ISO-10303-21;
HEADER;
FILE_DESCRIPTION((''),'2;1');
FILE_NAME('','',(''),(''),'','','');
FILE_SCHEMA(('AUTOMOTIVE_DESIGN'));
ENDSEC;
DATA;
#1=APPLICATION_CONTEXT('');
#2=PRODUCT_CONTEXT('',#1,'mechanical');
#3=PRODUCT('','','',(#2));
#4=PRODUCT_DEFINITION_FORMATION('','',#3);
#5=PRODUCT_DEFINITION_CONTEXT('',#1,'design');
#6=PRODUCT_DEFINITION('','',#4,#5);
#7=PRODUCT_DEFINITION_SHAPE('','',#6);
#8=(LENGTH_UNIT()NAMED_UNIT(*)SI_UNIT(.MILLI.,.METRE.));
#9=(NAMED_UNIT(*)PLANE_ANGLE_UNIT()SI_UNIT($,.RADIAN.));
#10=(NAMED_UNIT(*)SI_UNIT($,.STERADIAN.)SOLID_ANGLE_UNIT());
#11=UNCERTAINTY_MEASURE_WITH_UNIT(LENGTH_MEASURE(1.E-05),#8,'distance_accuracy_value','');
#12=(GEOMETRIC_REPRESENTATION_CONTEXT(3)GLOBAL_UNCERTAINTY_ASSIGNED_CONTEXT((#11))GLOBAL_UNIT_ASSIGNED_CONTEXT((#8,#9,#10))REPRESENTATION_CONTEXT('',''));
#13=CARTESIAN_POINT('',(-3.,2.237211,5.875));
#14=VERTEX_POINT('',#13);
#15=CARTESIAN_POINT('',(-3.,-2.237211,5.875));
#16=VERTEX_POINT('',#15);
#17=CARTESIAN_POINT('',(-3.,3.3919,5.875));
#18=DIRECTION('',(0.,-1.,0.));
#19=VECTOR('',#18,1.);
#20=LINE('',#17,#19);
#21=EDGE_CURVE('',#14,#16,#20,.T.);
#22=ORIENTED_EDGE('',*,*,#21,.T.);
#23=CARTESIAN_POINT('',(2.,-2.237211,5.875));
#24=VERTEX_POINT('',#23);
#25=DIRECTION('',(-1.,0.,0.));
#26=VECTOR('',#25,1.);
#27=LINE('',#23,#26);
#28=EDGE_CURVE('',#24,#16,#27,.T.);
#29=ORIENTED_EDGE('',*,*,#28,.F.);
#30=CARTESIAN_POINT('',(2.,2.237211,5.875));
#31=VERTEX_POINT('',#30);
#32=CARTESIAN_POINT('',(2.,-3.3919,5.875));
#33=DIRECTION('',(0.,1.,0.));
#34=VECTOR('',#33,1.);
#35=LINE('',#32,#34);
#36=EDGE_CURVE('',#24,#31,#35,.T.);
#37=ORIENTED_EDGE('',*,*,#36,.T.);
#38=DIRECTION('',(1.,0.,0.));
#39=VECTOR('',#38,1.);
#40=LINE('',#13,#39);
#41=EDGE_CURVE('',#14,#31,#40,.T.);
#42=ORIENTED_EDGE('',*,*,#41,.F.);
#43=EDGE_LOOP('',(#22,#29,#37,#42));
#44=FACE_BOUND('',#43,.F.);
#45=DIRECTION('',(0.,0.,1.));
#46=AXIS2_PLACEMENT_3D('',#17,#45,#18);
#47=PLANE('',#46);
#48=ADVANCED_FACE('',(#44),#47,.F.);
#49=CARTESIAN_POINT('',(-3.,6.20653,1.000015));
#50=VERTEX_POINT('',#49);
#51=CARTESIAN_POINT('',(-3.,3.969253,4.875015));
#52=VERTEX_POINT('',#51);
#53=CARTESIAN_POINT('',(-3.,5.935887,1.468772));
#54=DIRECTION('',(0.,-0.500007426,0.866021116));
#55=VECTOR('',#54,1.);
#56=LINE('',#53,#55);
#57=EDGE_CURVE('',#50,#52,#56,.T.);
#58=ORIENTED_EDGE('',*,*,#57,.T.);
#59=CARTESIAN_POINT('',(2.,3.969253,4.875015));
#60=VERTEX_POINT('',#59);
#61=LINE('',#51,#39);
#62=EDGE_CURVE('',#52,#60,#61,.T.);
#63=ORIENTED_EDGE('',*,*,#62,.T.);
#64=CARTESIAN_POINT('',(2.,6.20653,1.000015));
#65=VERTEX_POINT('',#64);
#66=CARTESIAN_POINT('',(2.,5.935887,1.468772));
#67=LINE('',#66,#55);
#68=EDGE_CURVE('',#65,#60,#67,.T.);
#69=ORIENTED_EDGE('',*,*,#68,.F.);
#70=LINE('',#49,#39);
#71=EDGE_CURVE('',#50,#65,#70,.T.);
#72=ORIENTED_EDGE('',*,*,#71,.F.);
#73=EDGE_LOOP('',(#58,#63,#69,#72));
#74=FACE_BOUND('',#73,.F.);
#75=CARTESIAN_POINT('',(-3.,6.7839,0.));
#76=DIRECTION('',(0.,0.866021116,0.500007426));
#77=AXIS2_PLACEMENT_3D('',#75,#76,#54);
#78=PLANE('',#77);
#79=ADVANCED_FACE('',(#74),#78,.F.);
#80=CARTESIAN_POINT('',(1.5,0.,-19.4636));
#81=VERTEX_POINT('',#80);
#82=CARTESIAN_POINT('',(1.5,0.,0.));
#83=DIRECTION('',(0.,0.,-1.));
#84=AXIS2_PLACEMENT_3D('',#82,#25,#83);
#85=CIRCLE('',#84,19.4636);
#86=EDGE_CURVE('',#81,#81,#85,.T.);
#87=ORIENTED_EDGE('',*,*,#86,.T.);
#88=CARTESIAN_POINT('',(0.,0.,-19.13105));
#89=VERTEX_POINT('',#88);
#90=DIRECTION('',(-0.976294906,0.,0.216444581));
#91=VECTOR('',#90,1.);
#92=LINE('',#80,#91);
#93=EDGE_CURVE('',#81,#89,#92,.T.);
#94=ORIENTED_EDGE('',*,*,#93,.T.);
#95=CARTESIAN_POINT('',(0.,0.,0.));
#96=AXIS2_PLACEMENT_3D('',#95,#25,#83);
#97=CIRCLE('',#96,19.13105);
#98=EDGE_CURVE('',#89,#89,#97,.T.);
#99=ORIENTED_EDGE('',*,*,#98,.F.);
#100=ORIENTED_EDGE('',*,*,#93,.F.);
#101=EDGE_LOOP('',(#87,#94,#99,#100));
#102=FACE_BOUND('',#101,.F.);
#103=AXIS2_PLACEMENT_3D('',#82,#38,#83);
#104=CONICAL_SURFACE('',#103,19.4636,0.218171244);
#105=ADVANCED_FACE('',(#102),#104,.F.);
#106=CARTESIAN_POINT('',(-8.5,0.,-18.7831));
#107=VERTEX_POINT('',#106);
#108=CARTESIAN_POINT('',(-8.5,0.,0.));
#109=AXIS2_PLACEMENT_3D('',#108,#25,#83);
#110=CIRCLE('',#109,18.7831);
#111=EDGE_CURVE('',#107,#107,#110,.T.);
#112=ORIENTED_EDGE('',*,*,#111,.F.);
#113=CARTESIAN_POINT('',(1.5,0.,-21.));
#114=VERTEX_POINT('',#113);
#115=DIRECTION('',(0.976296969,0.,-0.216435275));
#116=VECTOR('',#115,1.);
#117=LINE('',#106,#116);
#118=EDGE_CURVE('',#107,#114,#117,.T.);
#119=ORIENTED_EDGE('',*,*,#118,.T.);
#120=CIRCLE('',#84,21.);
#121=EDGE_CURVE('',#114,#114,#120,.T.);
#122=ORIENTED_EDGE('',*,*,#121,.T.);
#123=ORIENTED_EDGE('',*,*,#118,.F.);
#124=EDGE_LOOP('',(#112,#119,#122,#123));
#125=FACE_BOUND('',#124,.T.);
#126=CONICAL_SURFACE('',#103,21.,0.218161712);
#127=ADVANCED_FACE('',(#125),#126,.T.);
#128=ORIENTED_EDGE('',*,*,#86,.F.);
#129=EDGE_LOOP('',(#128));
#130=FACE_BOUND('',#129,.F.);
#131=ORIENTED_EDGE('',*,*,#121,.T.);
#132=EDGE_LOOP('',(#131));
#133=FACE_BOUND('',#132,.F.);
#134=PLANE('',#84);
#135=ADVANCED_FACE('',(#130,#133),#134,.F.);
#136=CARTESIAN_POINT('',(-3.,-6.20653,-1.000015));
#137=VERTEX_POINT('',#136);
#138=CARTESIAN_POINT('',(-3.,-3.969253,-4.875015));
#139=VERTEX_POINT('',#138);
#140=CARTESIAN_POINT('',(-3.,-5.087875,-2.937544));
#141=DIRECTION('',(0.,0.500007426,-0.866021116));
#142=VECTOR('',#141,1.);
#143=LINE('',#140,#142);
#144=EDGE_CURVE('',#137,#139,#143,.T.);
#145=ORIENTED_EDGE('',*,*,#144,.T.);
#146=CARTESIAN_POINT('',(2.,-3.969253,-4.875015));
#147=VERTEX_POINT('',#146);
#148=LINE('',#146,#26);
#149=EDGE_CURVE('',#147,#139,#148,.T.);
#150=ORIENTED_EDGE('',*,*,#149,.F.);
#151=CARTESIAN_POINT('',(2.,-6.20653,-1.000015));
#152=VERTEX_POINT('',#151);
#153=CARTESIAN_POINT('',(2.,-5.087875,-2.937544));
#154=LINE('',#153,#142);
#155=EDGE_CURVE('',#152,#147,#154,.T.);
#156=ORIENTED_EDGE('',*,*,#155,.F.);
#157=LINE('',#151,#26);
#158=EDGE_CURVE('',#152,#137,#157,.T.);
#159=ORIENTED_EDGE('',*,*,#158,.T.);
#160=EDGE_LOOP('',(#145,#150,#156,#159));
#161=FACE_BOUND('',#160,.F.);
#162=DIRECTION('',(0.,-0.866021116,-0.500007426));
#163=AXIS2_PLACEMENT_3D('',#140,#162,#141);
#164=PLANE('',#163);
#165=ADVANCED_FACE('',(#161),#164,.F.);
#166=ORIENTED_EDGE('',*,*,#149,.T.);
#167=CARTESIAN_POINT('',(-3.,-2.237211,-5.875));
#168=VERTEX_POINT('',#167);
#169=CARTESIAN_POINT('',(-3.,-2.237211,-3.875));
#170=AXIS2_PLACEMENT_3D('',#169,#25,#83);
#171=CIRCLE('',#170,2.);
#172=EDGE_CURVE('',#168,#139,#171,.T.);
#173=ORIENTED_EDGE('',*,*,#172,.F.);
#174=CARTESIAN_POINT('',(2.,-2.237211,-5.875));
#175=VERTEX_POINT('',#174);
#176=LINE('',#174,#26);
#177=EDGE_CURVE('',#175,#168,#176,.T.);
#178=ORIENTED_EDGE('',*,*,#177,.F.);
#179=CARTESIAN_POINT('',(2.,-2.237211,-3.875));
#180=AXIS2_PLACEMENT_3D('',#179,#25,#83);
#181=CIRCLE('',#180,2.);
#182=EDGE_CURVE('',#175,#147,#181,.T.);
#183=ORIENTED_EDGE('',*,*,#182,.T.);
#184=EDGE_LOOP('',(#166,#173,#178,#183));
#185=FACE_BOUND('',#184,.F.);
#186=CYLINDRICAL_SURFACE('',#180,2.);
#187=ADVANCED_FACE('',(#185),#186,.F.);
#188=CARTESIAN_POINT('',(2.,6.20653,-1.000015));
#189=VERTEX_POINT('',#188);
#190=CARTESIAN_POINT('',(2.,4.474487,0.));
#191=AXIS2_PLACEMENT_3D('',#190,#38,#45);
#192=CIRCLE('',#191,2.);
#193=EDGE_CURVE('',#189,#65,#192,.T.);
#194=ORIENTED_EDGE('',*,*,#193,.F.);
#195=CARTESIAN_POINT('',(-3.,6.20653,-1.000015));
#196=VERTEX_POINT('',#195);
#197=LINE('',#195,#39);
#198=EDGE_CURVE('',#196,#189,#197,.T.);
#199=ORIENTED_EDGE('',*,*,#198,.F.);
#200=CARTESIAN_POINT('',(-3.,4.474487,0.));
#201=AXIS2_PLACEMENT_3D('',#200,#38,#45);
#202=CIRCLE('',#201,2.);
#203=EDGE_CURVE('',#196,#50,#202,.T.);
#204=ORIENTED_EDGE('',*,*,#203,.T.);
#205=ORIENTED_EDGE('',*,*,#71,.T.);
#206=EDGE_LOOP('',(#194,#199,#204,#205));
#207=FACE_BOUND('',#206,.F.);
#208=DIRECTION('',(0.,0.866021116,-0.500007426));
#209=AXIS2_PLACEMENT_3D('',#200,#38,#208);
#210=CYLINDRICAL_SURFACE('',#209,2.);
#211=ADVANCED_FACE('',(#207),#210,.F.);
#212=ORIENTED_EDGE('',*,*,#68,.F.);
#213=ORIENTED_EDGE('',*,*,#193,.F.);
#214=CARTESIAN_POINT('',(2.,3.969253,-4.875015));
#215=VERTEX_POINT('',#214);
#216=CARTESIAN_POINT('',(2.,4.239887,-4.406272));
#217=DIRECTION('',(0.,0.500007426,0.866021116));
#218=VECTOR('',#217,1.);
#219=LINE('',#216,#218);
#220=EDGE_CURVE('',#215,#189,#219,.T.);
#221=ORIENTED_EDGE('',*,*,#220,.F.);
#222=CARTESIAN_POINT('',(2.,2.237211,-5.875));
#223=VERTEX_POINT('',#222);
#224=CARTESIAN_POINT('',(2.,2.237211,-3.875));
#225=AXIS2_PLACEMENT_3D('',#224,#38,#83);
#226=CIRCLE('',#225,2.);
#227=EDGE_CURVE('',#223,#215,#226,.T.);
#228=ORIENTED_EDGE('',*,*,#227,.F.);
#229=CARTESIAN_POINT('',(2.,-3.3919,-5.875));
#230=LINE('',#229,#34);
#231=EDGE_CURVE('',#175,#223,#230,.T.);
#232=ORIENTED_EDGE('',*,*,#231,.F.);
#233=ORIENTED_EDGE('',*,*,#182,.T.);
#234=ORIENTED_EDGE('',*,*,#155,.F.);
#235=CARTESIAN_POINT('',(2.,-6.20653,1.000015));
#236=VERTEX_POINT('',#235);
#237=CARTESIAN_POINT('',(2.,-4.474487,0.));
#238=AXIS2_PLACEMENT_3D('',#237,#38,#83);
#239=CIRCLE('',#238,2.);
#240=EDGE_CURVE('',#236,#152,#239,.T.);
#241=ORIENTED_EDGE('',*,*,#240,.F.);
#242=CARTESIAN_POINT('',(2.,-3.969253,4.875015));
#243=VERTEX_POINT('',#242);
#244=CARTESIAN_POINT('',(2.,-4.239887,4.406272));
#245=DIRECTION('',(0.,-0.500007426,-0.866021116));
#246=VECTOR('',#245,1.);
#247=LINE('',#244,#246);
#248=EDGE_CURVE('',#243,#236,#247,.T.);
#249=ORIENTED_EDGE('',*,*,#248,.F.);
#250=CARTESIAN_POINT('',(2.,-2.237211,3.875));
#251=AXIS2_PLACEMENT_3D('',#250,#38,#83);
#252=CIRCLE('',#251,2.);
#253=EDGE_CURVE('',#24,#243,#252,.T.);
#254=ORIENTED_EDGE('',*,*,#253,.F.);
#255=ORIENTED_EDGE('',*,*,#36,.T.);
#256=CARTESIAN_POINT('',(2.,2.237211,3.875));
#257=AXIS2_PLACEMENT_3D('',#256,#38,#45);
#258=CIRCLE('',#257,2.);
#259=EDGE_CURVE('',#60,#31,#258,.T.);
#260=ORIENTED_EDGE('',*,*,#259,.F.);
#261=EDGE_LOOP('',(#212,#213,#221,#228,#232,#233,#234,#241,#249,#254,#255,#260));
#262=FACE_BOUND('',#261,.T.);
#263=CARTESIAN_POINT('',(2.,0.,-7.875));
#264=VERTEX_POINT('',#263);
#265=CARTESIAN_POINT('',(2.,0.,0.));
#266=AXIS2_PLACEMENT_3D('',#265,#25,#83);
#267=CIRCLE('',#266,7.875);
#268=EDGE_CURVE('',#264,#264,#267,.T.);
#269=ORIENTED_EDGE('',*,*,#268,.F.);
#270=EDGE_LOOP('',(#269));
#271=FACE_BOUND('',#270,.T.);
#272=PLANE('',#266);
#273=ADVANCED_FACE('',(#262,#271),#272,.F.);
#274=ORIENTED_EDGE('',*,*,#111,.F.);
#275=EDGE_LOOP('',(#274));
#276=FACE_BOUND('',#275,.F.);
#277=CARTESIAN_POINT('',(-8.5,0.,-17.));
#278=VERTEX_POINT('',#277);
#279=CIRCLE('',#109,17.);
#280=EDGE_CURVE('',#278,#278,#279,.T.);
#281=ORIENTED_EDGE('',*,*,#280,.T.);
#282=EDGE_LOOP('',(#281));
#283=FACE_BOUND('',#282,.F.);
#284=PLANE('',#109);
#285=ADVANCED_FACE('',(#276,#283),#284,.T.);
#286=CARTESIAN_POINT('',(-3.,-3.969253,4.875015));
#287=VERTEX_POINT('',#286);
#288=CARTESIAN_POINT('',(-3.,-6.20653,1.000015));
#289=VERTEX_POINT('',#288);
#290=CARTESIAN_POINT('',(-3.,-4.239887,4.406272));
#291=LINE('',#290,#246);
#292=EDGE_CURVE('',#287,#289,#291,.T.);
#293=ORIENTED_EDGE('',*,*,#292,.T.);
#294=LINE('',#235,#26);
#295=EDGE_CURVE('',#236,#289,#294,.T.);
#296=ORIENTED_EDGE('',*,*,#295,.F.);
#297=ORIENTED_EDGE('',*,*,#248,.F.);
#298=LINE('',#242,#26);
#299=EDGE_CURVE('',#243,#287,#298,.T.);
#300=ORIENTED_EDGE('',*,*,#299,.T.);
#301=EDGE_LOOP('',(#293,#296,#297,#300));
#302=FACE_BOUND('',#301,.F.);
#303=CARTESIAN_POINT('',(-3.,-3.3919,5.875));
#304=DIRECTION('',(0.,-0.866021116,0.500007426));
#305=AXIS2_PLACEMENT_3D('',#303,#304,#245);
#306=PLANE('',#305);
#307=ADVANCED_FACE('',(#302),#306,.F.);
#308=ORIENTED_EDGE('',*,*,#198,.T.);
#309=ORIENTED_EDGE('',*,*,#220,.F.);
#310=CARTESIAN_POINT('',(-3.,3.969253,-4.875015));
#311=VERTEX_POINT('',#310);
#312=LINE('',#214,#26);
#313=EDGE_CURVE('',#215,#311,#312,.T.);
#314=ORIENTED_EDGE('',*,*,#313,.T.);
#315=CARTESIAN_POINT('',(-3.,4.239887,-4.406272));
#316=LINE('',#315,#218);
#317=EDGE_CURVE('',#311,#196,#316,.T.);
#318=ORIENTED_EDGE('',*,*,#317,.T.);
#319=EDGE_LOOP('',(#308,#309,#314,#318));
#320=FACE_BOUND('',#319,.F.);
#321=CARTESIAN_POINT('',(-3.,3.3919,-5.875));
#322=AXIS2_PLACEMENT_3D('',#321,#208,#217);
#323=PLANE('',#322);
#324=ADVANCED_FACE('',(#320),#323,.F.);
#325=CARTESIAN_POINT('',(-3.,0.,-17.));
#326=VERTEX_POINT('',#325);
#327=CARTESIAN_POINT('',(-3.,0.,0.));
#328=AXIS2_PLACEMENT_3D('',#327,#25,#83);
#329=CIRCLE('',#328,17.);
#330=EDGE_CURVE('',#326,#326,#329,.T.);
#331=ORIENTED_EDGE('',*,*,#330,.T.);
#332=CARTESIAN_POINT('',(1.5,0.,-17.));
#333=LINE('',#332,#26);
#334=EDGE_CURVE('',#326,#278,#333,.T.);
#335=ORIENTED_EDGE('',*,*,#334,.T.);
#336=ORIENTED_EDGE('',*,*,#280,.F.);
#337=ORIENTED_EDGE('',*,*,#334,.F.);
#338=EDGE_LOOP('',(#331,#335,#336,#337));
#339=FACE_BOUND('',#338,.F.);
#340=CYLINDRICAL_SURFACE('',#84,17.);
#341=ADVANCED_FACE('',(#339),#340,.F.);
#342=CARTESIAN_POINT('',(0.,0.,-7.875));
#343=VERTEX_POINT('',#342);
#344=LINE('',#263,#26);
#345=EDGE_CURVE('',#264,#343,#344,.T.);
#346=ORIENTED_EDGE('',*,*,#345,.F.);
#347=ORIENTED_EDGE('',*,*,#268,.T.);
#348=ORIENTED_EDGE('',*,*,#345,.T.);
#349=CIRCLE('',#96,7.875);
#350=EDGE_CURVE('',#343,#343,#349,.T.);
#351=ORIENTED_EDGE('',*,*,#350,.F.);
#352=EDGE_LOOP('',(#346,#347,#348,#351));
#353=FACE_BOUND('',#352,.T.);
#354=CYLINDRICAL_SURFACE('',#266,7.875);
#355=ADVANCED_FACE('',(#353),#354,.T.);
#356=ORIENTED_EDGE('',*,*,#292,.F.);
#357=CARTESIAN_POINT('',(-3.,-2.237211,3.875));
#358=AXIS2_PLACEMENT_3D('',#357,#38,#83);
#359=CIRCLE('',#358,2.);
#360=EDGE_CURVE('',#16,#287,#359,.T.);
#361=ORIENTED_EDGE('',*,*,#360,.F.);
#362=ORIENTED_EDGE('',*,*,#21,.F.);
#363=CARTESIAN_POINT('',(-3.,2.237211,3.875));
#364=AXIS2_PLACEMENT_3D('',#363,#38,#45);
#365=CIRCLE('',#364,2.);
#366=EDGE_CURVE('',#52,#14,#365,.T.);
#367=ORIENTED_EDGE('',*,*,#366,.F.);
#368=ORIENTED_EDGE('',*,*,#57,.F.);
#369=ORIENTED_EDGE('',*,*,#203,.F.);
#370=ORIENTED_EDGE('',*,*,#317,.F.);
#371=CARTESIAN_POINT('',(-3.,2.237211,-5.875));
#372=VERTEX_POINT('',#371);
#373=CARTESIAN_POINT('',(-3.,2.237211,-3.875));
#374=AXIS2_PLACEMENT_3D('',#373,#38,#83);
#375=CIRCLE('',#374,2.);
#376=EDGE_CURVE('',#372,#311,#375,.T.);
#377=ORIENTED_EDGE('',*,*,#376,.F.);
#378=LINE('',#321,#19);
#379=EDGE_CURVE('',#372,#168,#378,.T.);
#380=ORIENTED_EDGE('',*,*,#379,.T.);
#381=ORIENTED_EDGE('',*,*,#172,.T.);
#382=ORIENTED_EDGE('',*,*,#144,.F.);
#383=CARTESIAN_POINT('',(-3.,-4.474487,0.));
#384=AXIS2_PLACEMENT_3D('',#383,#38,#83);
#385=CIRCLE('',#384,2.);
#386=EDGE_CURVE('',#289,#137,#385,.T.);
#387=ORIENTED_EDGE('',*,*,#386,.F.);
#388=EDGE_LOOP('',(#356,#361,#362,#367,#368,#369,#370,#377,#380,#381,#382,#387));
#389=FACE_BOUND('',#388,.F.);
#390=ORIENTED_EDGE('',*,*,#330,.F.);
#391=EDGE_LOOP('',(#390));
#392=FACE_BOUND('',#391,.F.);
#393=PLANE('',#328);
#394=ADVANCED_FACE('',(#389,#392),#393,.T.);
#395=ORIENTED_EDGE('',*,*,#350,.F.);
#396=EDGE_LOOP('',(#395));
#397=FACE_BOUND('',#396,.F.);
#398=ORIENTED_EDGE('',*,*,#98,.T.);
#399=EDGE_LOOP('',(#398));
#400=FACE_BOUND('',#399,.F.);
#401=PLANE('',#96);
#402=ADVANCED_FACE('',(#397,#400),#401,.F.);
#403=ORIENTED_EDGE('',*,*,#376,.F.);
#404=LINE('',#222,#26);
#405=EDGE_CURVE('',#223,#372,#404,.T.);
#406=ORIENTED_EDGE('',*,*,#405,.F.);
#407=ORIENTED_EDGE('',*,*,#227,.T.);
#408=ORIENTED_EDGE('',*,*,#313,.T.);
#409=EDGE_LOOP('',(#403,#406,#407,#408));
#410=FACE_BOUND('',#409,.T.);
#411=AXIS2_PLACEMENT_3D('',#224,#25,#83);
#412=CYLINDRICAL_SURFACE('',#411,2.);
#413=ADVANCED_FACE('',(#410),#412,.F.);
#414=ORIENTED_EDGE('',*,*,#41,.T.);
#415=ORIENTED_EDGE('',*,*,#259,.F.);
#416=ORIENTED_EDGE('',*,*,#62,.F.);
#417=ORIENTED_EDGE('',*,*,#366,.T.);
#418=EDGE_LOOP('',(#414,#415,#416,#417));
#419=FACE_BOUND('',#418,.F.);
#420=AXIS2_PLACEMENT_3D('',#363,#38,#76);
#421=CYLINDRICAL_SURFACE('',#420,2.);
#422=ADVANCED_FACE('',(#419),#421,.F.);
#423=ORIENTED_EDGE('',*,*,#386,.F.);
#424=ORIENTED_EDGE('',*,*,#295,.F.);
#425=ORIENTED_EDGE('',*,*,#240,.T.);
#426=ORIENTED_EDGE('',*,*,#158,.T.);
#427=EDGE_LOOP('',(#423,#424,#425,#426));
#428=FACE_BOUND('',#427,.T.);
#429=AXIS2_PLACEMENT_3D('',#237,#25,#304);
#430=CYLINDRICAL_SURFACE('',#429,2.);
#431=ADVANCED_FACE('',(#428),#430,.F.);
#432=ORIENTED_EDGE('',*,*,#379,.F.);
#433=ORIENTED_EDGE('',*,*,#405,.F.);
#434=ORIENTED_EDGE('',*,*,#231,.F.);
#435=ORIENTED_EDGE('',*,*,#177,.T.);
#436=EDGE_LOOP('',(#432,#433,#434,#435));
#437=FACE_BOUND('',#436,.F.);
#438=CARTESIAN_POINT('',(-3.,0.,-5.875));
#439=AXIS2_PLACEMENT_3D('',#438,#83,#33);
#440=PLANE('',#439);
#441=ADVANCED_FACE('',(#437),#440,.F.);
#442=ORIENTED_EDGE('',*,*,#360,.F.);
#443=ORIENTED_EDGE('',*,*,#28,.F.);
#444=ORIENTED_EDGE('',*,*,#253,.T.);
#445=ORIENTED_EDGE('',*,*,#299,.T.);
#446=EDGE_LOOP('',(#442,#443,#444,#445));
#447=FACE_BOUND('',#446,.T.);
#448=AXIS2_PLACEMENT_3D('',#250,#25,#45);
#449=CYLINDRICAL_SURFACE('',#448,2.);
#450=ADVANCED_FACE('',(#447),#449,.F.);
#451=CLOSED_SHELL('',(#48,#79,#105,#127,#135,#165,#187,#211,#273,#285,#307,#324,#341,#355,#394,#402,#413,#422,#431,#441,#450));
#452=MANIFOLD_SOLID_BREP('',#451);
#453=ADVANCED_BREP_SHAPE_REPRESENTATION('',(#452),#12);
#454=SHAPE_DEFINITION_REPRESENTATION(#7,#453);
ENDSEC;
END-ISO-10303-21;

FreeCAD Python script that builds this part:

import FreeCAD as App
import Part
import Sketcher
from FreeCAD import Vector
Q = App.Units.Quantity


def edges_at(feature, points):
    """Names of the edges that pass closest to the given points."""
    edges = feature.Shape.Edges
    near = lambda p: min(range(len(edges)), key=lambda i: edges[i].distToShape(Part.Vertex(*p))[0])
    return sorted({f"Edge{near(p) + 1}" for p in points})


def add_polygon(sketch, points):
    """Adds a closed chain of lines whose ends are joined by coincident constraints."""
    first, n = sketch.GeometryCount, len(points)
    for a, b in zip(points, points[1:] + points[:1]):
        sketch.addGeometry(Part.LineSegment(App.Vector(*a, 0), App.Vector(*b, 0)), False)
    for i in range(n):
        sketch.addConstraint(Sketcher.Constraint("Coincident", first + i, 2, first + (i + 1) % n, 1))

doc = App.newDocument("Part")
body = doc.addObject("PartDesign::Body", "Body")

sketch1 = body.newObject("Sketcher::SketchObject", "Sketch")
sketch1.AttachmentSupport = (doc.getObject("XZ_Plane"), [""])
sketch1.MapMode = "FlatFace"
add_polygon(sketch1, [(-3, -5.9), (2, -5.9), (2, -7.9), (0, -7.9), (0, -19.1), (1.5, -19.5), (1.5, -21), (-8.5, -18.8), (-8.5, -17), (-3, -17)])
sketch1.addConstraint([
    Sketcher.Constraint("Horizontal", 0),
    Sketcher.Constraint("Vertical", 1),
    Sketcher.Constraint("Horizontal", 2),
    Sketcher.Constraint("Vertical", 3),
    Sketcher.Constraint("Vertical", 5),
    Sketcher.Constraint("Vertical", 7),
    Sketcher.Constraint("Horizontal", 8),
    Sketcher.Constraint("Vertical", 9),
    Sketcher.Constraint("PointOnObject", 2, 2, -2),
    Sketcher.Constraint("Parallel", 4, 6),
    Sketcher.Constraint("Equal", 2, 1),
    Sketcher.Constraint("DistanceX", 2, 2, 2, 1, Q("2 mm")),
    Sketcher.Constraint("DistanceY", 5, 2, -1, 1, Q("21 mm")),
    Sketcher.Constraint("DistanceX", 8, 2, -1, 1, Q("3 mm")),
    Sketcher.Constraint("Angle", 4, Q("-12.5003 deg")),
    Sketcher.Constraint("DistanceX", 6, 2, 4, 2, Q("10 mm")),
    Sketcher.Constraint("DistanceY", 5, 2, 7, 2, Q("4 mm")),
    Sketcher.Constraint("DistanceX", -1, 1, 4, 2, Q("1.5 mm")),
    Sketcher.Constraint("DistanceY", 0, 2, -1, 1, Q("5.875 mm")),
    Sketcher.Constraint("DistanceY", 3, 2, 3, 1, Q("11.256 mm")),
])
revolution = body.newObject("PartDesign::Revolution", "Revolution")
revolution.Profile = sketch1
revolution.ReferenceAxis = (sketch1, ["H_Axis"])
revolution.Angle = 360

sketch2 = body.newObject("Sketcher::SketchObject", "Sketch001")
sketch2.AttachmentSupport = (doc.getObject("YZ_Plane"), [""])
sketch2.MapMode = "FlatFace"
sketch2.AttachmentOffset = App.Placement(Vector(0, 0, -3), App.Rotation())
add_polygon(sketch2, [(3, -6), (-3, -6), (-7, 0), (-3, 6), (3, 6), (7, 0)])
sketch2.addConstraint([
    Sketcher.Constraint("Horizontal", 0),
    Sketcher.Constraint("Horizontal", 3),
    Sketcher.Constraint("Symmetric", 0, 2, 3, 2, -1, 1),
    Sketcher.Constraint("Symmetric", 1, 2, 4, 2, -1, 1),
    Sketcher.Constraint("PointOnObject", 1, 2, -1),
    Sketcher.Constraint("Parallel", 2, 5),
    Sketcher.Constraint("Vertical", 0, 2, 2, 2),
    Sketcher.Constraint("Angle", 1, Q("120.0005 deg")),
    Sketcher.Constraint("DistanceY", 0, 2, 2, 2, Q("11.75 mm")),
    Sketcher.Constraint("DistanceX", 0, 2, 0, 1, Q("6.7838 mm")),
])
pocket1 = body.newObject("PartDesign::Pocket", "Pocket")
pocket1.Profile = sketch2
pocket1.Type = "ThroughAll"
pocket1.Midplane = True
doc.recompute()

fillet = body.newObject("PartDesign::Fillet", "Fillet")
fillet.Base = (pocket1, edges_at(pocket1, [
    (-0.5, -3.392, -5.875),
    (-0.5, 3.392, -5.875),
    (-0.5, 6.784, 0),
    (-0.5, -6.784, 0),
    (-0.5, -3.392, 5.875),
    (-0.5, 3.392, 5.875),
]))
fillet.Radius = 2

doc.recompute()
